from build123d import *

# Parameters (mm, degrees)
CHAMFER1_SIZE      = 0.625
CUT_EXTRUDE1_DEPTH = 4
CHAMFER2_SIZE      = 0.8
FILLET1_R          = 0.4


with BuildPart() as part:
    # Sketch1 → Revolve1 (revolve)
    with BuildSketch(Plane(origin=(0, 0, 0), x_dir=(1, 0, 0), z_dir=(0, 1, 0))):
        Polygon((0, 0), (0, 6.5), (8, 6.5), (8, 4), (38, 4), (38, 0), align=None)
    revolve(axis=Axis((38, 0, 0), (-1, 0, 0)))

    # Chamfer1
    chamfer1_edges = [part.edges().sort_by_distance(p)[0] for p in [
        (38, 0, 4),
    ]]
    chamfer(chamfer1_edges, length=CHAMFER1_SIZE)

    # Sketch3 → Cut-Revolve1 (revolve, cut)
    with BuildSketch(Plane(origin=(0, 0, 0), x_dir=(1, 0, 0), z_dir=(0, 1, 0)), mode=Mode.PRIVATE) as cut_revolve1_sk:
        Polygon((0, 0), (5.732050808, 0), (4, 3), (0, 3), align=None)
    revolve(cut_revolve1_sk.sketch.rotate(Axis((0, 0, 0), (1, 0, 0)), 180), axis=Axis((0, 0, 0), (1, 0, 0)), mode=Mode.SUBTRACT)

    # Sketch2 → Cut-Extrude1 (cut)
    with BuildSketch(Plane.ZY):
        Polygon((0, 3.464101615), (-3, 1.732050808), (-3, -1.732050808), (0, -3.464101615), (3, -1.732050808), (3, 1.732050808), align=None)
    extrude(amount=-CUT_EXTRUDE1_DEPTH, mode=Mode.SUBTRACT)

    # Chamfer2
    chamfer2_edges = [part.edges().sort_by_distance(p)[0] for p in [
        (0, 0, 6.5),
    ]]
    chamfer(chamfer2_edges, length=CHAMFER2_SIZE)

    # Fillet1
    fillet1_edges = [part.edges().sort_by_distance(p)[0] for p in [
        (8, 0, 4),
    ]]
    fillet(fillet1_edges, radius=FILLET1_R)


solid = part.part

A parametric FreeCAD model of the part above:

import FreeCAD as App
import Part
import Sketcher
Q = App.Units.Quantity


def edges_at(feature, points):
    """Names of the edges that pass closest to the given points."""
    edges = feature.Shape.Edges
    near = lambda p: min(range(len(edges)), key=lambda i: edges[i].distToShape(Part.Vertex(*p))[0])
    return sorted({f"Edge{near(p) + 1}" for p in points})

doc = App.newDocument("Part")
body = doc.addObject("PartDesign::Body", "Body")

sketch1 = body.newObject("Sketcher::SketchObject", "Sketch")
sketch1.AttachmentSupport = (doc.getObject("XZ_Plane"), [""])
sketch1.MapMode = "FlatFace"
sketch1.addGeometry([
    Part.LineSegment(App.Vector(0, -6.5, 0), App.Vector(0, 0, 0)),
    Part.LineSegment(App.Vector(0, 0, 0), App.Vector(38, 0, 0)),
    Part.LineSegment(App.Vector(38, 0, 0), App.Vector(38, -4, 0)),
    Part.LineSegment(App.Vector(38, -4, 0), App.Vector(8, -4, 0)),
    Part.LineSegment(App.Vector(8, -4, 0), App.Vector(8, -6.5, 0)),
    Part.LineSegment(App.Vector(8, -6.5, 0), App.Vector(0, -6.5, 0)),
], False)
sketch1.addConstraint([
    Sketcher.Constraint("Coincident", 0, 2, 1, 1),
    Sketcher.Constraint("Coincident", 1, 2, 2, 1),
    Sketcher.Constraint("Coincident", 2, 2, 3, 1),
    Sketcher.Constraint("Coincident", 3, 2, 4, 1),
    Sketcher.Constraint("Coincident", 4, 2, 5, 1),
    Sketcher.Constraint("Coincident", 5, 2, 0, 1),
    Sketcher.Constraint("Vertical", 0),
    Sketcher.Constraint("Horizontal", 1),
    Sketcher.Constraint("Vertical", 2),
    Sketcher.Constraint("Horizontal", 3),
    Sketcher.Constraint("Vertical", 4),
    Sketcher.Constraint("Horizontal", 5),
    Sketcher.Constraint("Coincident", 0, 2, -1, 1),
    Sketcher.Constraint("DistanceX", 1, 1, 1, 2, 38.0),
    Sketcher.Constraint("DistanceX", 3, 2, 3, 1, 30.0),
    Sketcher.Constraint("DistanceY", 2, 2, 2, 1, 4.0),
    Sketcher.Constraint("DistanceY", 0, 1, 0, 2, 6.5),
])
revolution = body.newObject("PartDesign::Revolution", "Revolution")
revolution.Profile = sketch1
revolution.ReferenceAxis = (sketch1, ["H_Axis"])
revolution.Angle = 360
doc.recompute()

chamfer = body.newObject("PartDesign::Chamfer", "Chamfer")
chamfer.Base = (revolution, edges_at(revolution, [(38, 0, 4)]))
chamfer.Size = 0.625

sketch2 = body.newObject("Sketcher::SketchObject", "Sketch001")
sketch2.AttachmentSupport = (doc.getObject("XZ_Plane"), [""])
sketch2.MapMode = "FlatFace"
sketch2.addGeometry([
    Part.LineSegment(App.Vector(0, 0, 0), App.Vector(5.732051, 0, 0)),
    Part.LineSegment(App.Vector(5.732051, 0, 0), App.Vector(4, -3, 0)),
    Part.LineSegment(App.Vector(4, -3, 0), App.Vector(0, -3, 0)),
    Part.LineSegment(App.Vector(0, -3, 0), App.Vector(0, 0, 0)),
], False)
sketch2.addConstraint([
    Sketcher.Constraint("Coincident", 0, 2, 1, 1),
    Sketcher.Constraint("Coincident", 1, 2, 2, 1),
    Sketcher.Constraint("Coincident", 2, 2, 3, 1),
    Sketcher.Constraint("Coincident", 3, 2, 0, 1),
    Sketcher.Constraint("Horizontal", 0),
    Sketcher.Constraint("Horizontal", 2),
    Sketcher.Constraint("Vertical", 3),
    Sketcher.Constraint("Coincident", 3, 2, -1, 1),
    Sketcher.Constraint("DistanceX", 2, 2, 2, 1, 4.0),
    Sketcher.Constraint("DistanceY", 3, 1, 3, 2, 3.0),
    Sketcher.Constraint("Angle", 1, Q("-120 deg")),
])
groove = body.newObject("PartDesign::Groove", "Groove")
groove.Profile = sketch2
groove.ReferenceAxis = (sketch2, ["H_Axis"])
groove.Angle = 360

sketch3 = body.newObject("Sketcher::SketchObject", "Sketch002")
sketch3.AttachmentSupport = (doc.getObject("YZ_Plane"), [""])
sketch3.MapMode = "FlatFace"
sketch3.addGeometry([
    Part.LineSegment(App.Vector(3.464102, 0, 0), App.Vector(1.732051, -3, 0)),
    Part.LineSegment(App.Vector(1.732051, -3, 0), App.Vector(-1.732051, -3, 0)),
    Part.LineSegment(App.Vector(-1.732051, -3, 0), App.Vector(-3.464102, 0, 0)),
    Part.LineSegment(App.Vector(-3.464102, 0, 0), App.Vector(-1.732051, 3, 0)),
    Part.LineSegment(App.Vector(-1.732051, 3, 0), App.Vector(1.732051, 3, 0)),
    Part.LineSegment(App.Vector(1.732051, 3, 0), App.Vector(3.464102, 0, 0)),
], False)
sketch3.addConstraint([
    Sketcher.Constraint("Coincident", 0, 2, 1, 1),
    Sketcher.Constraint("Coincident", 1, 2, 2, 1),
    Sketcher.Constraint("Coincident", 2, 2, 3, 1),
    Sketcher.Constraint("Coincident", 3, 2, 4, 1),
    Sketcher.Constraint("Coincident", 4, 2, 5, 1),
    Sketcher.Constraint("Coincident", 5, 2, 0, 1),
    Sketcher.Constraint("Horizontal", 1),
    Sketcher.Constraint("Horizontal", 4),
    Sketcher.Constraint("Symmetric", 0, 2, 3, 2, -1, 1),
    Sketcher.Constraint("Symmetric", 2, 2, 5, 2, -1, 1),
    Sketcher.Constraint("PointOnObject", 2, 2, -1),
    Sketcher.Constraint("Parallel", 2, 5),
    Sketcher.Constraint("Vertical", 1, 2, 3, 2),
    Sketcher.Constraint("Angle", 0, Q("-120 deg")),
    Sketcher.Constraint("DistanceY", 0, 2, -1, 1, 3.0),
    Sketcher.Constraint("DistanceX", 1, 2, 1, 1, 3.464102),
])
pocket1 = body.newObject("PartDesign::Pocket", "Pocket")
pocket1.Profile = sketch3
pocket1.Length = 4
pocket1.Reversed = True
doc.recompute()

chamfer2 = body.newObject("PartDesign::Chamfer", "Chamfer001")
chamfer2.Base = (pocket1, edges_at(pocket1, [(0, 0, 6.5)]))
chamfer2.Size = 0.8
doc.recompute()

fillet = body.newObject("PartDesign::Fillet", "Fillet")
fillet.Base = (chamfer2, edges_at(chamfer2, [(8, 0, 4)]))
fillet.Radius = 0.4

doc.recompute()
